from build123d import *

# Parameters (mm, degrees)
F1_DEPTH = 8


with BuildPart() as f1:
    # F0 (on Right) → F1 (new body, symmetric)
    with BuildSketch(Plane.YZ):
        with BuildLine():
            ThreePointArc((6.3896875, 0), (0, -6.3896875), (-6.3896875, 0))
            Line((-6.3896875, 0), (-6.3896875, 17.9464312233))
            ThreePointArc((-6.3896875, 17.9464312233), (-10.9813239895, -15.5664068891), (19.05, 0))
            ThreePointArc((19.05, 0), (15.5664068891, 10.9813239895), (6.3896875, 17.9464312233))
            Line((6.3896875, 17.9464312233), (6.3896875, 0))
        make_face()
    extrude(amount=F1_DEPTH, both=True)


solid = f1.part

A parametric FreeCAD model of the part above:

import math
import FreeCAD as App
import Part
import Sketcher

V = App.Vector

doc = App.newDocument("Part")
params = doc.addObject("Spreadsheet::Sheet", "Params")
for row, (alias, value) in enumerate([
    ("sketch1_radius", "19.05 mm"),
    ("pad1_length", "16 mm"),
], start=1):
    params.set(f"A{row}", alias)
    params.set(f"B{row}", "=" + value)
    params.setAlias(f"B{row}", alias)

body = doc.addObject("PartDesign::Body", "Body")

# Sketch on YZ plane
sketch1 = body.newObject("Sketcher::SketchObject", "Sketch")
sketch1.AttachmentSupport = (doc.getObject("YZ_Plane"), [""])
sketch1.MapMode = "FlatFace"
sketch1.addGeometry([
    Part.ArcOfCircle(Part.Circle(V(0, 0, 0), V(0, 0, 1), 6), math.radians(180), math.radians(360)),  # 0
    Part.LineSegment(V(-6, 0, 0), V(-6, 18, 0)),  # 1
    Part.ArcOfCircle(Part.Circle(V(0, 0, 0), V(0, 0, 1), 19), math.radians(110), math.radians(360)),  # 2
    Part.ArcOfCircle(Part.Circle(V(0, 0, 0), V(0, 0, 1), 19), math.radians(0), math.radians(70)),  # 3
    Part.LineSegment(V(6, 18, 0), V(6, 0, 0)),  # 4
], False)
sketch1.addConstraint([
    Sketcher.Constraint("Tangent", 0, 1, 1, 1),
    Sketcher.Constraint("Coincident", 1, 2, 2, 1),
    Sketcher.Constraint("Tangent", 2, 2, 3, 1),
    Sketcher.Constraint("Coincident", 3, 2, 4, 1),
    Sketcher.Constraint("Tangent", 4, 2, 0, 2),
    Sketcher.Constraint("Vertical", 1),
    Sketcher.Constraint("Vertical", 4),
    Sketcher.Constraint("Coincident", 0, 3, -1, 1),
    Sketcher.Constraint("Coincident", 2, 3, -1, 1),
    Sketcher.Constraint("Equal", 2, 3),
    Sketcher.Constraint("PointOnObject", 2, 2, -1),
    Sketcher.Constraint("Radius", 2, 19.05),
    Sketcher.Constraint("Radius", 0, 6.389687),
])
sketch1.setExpression("Constraints[11]", "Params.sketch1_radius")
pad1 = body.newObject("PartDesign::Pad", "Pad")
pad1.Profile = sketch1
pad1.setExpression("Length", "Params.pad1_length")
pad1.Midplane = True

doc.recompute()
